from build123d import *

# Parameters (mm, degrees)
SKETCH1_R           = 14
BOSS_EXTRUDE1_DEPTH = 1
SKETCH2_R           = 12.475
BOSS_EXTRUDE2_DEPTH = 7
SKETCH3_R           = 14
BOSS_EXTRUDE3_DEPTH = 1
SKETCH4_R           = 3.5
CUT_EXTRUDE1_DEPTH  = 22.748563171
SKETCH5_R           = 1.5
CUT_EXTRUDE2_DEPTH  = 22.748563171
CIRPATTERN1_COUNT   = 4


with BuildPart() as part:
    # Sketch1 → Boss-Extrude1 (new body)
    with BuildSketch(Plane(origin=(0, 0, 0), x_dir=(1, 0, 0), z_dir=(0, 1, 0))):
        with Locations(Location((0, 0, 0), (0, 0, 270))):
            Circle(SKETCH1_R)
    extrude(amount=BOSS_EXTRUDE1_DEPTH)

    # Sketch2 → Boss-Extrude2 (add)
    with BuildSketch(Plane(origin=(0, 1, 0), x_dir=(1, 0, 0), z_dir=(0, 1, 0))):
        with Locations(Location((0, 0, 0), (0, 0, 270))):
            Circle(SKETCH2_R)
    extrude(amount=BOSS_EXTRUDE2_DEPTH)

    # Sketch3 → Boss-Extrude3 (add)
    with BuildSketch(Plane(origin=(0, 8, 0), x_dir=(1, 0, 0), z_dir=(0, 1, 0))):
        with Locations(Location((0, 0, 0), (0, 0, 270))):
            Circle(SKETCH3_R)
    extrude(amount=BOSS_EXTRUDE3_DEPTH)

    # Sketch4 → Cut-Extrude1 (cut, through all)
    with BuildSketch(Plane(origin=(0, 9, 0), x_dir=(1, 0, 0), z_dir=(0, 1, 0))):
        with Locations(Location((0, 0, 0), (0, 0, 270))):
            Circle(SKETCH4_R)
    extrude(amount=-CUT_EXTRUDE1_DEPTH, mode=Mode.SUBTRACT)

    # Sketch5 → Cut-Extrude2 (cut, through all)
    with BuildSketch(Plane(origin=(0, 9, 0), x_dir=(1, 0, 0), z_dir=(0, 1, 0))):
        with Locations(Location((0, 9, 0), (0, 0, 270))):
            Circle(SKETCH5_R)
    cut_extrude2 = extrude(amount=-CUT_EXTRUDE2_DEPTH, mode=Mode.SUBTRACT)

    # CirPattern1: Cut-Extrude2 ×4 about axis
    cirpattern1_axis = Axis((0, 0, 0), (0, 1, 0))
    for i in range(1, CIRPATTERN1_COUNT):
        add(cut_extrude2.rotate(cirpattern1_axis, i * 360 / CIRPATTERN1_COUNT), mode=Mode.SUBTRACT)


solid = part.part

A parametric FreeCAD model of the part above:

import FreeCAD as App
import Part
import Sketcher
from FreeCAD import Vector
Q = App.Units.Quantity

doc = App.newDocument("Part")
body = doc.addObject("PartDesign::Body", "Body")

# Sketch on XZ plane
sketch1 = doc.addObject("Sketcher::SketchObject", "Sketch")
body.addObject(sketch1)
sketch1.AttachmentSupport = (doc.XZ_Plane, [""])
sketch1.MapMode = "FlatFace"
sketch1.addGeometry(Part.Circle(Vector(0, 0, 0), Vector(0, 0, 1), 14), False)
sketch1.addConstraint([
    Sketcher.Constraint("Coincident", 0, 3, -1, 1),
    Sketcher.Constraint("Diameter", 0, Q("28 mm")),
])
pad1 = doc.addObject("PartDesign::Pad", "Pad")
body.addObject(pad1)
pad1.Profile = sketch1
pad1.Length = 1
pad1.Reversed = True

# Sketch on XZ plane
sketch2 = doc.addObject("Sketcher::SketchObject", "Sketch001")
body.addObject(sketch2)
sketch2.AttachmentSupport = (doc.XZ_Plane, [""])
sketch2.MapMode = "FlatFace"
sketch2.AttachmentOffset = App.Placement(Vector(0, 0, -1), App.Rotation())
sketch2.addGeometry(Part.Circle(Vector(0, 0, 0), Vector(0, 0, 1), 12), False)
sketch2.addConstraint([
    Sketcher.Constraint("Coincident", 0, 3, -1, 1),
    Sketcher.Constraint("Diameter", 0, Q("24.95 mm")),
])
pad2 = doc.addObject("PartDesign::Pad", "Pad001")
body.addObject(pad2)
pad2.Profile = sketch2
pad2.Length = 7
pad2.Reversed = True

# Sketch on XZ plane
sketch3 = doc.addObject("Sketcher::SketchObject", "Sketch002")
body.addObject(sketch3)
sketch3.AttachmentSupport = (doc.XZ_Plane, [""])
sketch3.MapMode = "FlatFace"
sketch3.AttachmentOffset = App.Placement(Vector(0, 0, -8), App.Rotation())
sketch3.addGeometry(Part.Circle(Vector(0, 0, 0), Vector(0, 0, 1), 14), False)
sketch3.addConstraint([
    Sketcher.Constraint("Coincident", 0, 3, -1, 1),
    Sketcher.Constraint("Diameter", 0, Q("28 mm")),
])
pad3 = doc.addObject("PartDesign::Pad", "Pad002")
body.addObject(pad3)
pad3.Profile = sketch3
pad3.Length = 1
pad3.Reversed = True

# Sketch on XZ plane
sketch4 = doc.addObject("Sketcher::SketchObject", "Sketch003")
body.addObject(sketch4)
sketch4.AttachmentSupport = (doc.XZ_Plane, [""])
sketch4.MapMode = "FlatFace"
sketch4.AttachmentOffset = App.Placement(Vector(0, 0, -9), App.Rotation())
sketch4.addGeometry(Part.Circle(Vector(0, 0, 0), Vector(0, 0, 1), 3.5), False)
sketch4.addConstraint([
    Sketcher.Constraint("Coincident", 0, 3, -1, 1),
    Sketcher.Constraint("Diameter", 0, Q("7 mm")),
])
pocket1 = doc.addObject("PartDesign::Pocket", "Pocket")
body.addObject(pocket1)
pocket1.Profile = sketch4
pocket1.Type = "ThroughAll"
pocket1.Reversed = True

# Sketch on XZ plane
sketch5 = doc.addObject("Sketcher::SketchObject", "Sketch004")
body.addObject(sketch5)
sketch5.AttachmentSupport = (doc.XZ_Plane, [""])
sketch5.MapMode = "FlatFace"
sketch5.AttachmentOffset = App.Placement(Vector(0, 0, -9), App.Rotation())
sketch5.addGeometry(Part.Circle(Vector(0, -9, 0), Vector(0, 0, 1), 1.5), False)
sketch5.addConstraint([
    Sketcher.Constraint("PointOnObject", 0, 3, -2),
    Sketcher.Constraint("Diameter", 0, Q("3 mm")),
    Sketcher.Constraint("DistanceY", 0, 3, -1, 1, Q("9 mm")),
])
pocket2 = doc.addObject("PartDesign::Pocket", "Pocket001")
body.addObject(pocket2)
pocket2.Profile = sketch5
pocket2.Type = "ThroughAll"
pocket2.Reversed = True
doc.recompute()

polarpattern = doc.addObject("PartDesign::PolarPattern", "PolarPattern")
body.addObject(polarpattern)
polarpattern.Originals = [pocket2]
polarpattern.Axis = (doc.Y_Axis, [""])
polarpattern.Angle = 360
polarpattern.Occurrences = 4
body.Tip = polarpattern

doc.recompute()
